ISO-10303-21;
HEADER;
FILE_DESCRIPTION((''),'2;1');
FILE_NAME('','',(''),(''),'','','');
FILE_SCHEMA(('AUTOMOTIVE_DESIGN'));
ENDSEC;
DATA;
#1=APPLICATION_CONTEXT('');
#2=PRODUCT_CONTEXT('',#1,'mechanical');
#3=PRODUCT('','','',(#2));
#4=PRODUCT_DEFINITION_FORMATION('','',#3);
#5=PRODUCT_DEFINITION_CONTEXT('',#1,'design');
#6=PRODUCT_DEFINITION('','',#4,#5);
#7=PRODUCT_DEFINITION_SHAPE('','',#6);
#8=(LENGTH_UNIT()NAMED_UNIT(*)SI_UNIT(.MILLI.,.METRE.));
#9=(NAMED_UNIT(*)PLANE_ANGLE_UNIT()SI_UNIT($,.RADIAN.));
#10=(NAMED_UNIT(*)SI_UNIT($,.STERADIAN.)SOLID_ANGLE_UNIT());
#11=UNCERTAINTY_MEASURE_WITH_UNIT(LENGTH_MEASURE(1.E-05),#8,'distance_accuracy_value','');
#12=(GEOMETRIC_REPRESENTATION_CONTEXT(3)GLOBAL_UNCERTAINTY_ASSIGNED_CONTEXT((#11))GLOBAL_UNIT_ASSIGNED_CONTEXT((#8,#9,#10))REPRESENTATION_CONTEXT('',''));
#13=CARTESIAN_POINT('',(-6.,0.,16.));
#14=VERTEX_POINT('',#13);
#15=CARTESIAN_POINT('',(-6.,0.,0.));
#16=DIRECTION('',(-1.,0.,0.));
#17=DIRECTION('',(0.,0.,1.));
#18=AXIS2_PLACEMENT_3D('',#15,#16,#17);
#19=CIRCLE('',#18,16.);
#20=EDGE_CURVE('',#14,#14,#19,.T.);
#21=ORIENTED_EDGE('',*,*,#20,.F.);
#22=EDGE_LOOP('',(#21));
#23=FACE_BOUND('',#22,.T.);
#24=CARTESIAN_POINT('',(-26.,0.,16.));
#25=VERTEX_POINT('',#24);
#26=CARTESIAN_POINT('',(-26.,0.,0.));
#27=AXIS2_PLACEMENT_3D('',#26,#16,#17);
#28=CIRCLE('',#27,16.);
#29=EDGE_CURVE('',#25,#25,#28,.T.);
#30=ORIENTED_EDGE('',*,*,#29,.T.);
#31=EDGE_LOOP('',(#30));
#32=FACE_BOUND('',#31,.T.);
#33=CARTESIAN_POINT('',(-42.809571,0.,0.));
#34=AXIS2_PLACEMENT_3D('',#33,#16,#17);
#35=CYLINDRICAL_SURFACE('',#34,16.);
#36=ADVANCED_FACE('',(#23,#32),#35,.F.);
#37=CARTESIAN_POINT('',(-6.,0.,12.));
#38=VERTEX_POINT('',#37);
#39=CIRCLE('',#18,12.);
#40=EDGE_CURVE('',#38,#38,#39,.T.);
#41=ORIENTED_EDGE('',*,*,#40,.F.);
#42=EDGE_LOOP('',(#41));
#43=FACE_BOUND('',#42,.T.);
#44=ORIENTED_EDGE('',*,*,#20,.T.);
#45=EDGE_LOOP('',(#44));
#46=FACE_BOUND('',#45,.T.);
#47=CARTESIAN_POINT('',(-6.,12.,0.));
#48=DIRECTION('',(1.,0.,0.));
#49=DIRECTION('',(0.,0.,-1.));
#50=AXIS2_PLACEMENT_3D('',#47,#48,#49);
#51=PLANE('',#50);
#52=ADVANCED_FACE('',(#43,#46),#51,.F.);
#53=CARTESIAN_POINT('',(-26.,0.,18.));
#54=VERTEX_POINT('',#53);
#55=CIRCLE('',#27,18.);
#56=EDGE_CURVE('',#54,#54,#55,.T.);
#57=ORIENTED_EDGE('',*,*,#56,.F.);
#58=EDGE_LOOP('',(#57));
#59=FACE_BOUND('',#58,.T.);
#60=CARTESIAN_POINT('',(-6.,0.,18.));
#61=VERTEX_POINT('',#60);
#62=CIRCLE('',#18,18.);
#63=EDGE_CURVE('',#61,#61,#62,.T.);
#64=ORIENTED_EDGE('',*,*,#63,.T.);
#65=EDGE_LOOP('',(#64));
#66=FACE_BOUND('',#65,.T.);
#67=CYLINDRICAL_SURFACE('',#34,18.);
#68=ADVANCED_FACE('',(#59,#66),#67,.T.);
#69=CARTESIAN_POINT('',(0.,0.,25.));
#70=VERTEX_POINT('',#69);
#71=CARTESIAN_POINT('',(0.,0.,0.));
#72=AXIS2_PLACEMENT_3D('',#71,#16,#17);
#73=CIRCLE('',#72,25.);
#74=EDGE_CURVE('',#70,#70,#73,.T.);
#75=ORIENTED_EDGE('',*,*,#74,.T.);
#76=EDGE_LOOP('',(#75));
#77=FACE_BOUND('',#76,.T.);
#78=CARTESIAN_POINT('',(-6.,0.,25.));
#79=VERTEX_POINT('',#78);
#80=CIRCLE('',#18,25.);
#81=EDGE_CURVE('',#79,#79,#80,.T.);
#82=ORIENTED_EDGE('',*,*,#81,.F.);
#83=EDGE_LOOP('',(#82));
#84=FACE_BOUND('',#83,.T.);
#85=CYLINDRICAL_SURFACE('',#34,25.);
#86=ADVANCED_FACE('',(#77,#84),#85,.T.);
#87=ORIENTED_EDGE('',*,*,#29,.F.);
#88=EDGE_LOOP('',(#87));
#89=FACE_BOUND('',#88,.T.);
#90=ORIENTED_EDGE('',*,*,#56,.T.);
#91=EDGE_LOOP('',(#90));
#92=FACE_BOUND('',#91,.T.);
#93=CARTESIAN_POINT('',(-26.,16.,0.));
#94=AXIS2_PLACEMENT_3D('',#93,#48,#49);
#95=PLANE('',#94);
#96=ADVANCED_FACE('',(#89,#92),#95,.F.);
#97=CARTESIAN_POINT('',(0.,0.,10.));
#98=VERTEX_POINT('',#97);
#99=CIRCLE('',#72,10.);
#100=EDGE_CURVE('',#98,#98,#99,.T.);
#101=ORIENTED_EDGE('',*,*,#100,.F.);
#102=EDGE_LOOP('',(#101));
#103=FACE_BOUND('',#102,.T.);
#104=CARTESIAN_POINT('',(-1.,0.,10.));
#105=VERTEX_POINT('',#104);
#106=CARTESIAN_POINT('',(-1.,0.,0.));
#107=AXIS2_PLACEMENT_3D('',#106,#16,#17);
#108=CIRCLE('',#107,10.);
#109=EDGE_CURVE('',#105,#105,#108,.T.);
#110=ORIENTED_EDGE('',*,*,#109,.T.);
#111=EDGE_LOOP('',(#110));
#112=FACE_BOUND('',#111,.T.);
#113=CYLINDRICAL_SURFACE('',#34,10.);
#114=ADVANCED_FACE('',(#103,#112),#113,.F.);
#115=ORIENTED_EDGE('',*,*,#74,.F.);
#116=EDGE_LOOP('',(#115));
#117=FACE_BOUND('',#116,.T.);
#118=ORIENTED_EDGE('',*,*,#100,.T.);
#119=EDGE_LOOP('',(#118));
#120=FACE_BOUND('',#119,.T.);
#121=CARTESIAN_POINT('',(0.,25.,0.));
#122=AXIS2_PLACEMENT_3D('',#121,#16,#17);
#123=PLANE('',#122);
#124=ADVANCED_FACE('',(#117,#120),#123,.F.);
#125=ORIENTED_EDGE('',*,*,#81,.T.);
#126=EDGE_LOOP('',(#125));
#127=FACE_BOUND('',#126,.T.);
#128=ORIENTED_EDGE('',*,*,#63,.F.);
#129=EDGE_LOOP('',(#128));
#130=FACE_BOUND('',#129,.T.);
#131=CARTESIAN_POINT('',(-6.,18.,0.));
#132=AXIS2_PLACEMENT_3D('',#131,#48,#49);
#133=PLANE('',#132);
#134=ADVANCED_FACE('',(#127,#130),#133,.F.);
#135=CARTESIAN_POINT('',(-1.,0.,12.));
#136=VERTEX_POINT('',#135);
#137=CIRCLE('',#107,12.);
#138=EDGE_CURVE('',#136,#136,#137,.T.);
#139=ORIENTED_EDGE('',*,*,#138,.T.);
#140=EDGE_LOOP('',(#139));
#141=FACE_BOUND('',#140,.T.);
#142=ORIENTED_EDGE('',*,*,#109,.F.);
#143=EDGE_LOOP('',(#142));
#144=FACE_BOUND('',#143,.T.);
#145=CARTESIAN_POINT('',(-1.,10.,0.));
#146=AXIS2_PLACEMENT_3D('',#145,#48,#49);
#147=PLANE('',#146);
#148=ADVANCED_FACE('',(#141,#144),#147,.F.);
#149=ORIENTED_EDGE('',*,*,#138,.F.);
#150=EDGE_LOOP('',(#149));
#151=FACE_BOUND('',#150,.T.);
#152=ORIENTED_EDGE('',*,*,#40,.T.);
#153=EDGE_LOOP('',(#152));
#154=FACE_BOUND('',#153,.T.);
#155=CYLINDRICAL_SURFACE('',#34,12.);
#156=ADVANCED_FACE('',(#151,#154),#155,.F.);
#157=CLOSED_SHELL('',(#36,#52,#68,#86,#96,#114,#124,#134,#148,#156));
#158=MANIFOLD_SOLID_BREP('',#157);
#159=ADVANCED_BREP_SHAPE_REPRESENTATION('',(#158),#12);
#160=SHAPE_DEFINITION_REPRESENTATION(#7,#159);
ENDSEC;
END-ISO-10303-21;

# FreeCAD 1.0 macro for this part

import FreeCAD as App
import Part
import Sketcher

doc = App.newDocument("Part")
body = doc.addObject("PartDesign::Body", "Body")

sketch1 = body.newObject("Sketcher::SketchObject", "Sketch")
sketch1.AttachmentSupport = (doc.getObject("XY_Plane"), [""])
sketch1.MapMode = "FlatFace"
sketch1.addGeometry([
    Part.LineSegment(App.Vector(-6, 12, 0), App.Vector(-1, 12, 0)),
    Part.LineSegment(App.Vector(-1, 12, 0), App.Vector(-1, 10, 0)),
    Part.LineSegment(App.Vector(-1, 10, 0), App.Vector(0, 10, 0)),
    Part.LineSegment(App.Vector(0, 10, 0), App.Vector(0, 25, 0)),
    Part.LineSegment(App.Vector(0, 25, 0), App.Vector(-6, 25, 0)),
    Part.LineSegment(App.Vector(-6, 25, 0), App.Vector(-6, 18, 0)),
    Part.LineSegment(App.Vector(-6, 18, 0), App.Vector(-26, 18, 0)),
    Part.LineSegment(App.Vector(-26, 18, 0), App.Vector(-26, 16, 0)),
    Part.LineSegment(App.Vector(-26, 16, 0), App.Vector(-6, 16, 0)),
    Part.LineSegment(App.Vector(-6, 16, 0), App.Vector(-6, 12, 0)),
], False)
sketch1.addConstraint([
    Sketcher.Constraint("Coincident", 0, 2, 1, 1),
    Sketcher.Constraint("Coincident", 1, 2, 2, 1),
    Sketcher.Constraint("Coincident", 2, 2, 3, 1),
    Sketcher.Constraint("Coincident", 3, 2, 4, 1),
    Sketcher.Constraint("Coincident", 4, 2, 5, 1),
    Sketcher.Constraint("Coincident", 5, 2, 6, 1),
    Sketcher.Constraint("Coincident", 6, 2, 7, 1),
    Sketcher.Constraint("Coincident", 7, 2, 8, 1),
    Sketcher.Constraint("Coincident", 8, 2, 9, 1),
    Sketcher.Constraint("Coincident", 9, 2, 0, 1),
    Sketcher.Constraint("Horizontal", 0),
    Sketcher.Constraint("Vertical", 1),
    Sketcher.Constraint("Horizontal", 2),
    Sketcher.Constraint("Vertical", 3),
    Sketcher.Constraint("Horizontal", 4),
    Sketcher.Constraint("Vertical", 5),
    Sketcher.Constraint("Horizontal", 6),
    Sketcher.Constraint("Vertical", 7),
    Sketcher.Constraint("Horizontal", 8),
    Sketcher.Constraint("Vertical", 9),
    Sketcher.Constraint("PointOnObject", 2, 2, -2),
    Sketcher.Constraint("Vertical", 5, 2, 8, 2),
    Sketcher.Constraint("Equal", 1, 7),
    Sketcher.Constraint("DistanceX", 0, 1, 0, 2, 5.0),
    Sketcher.Constraint("DistanceX", 2, 1, 2, 2, 1.0),
    Sketcher.Constraint("DistanceX", 6, 2, 6, 1, 20.0),
    Sketcher.Constraint("DistanceY", 1, 2, 1, 1, 2.0),
    Sketcher.Constraint("DistanceY", 3, 1, 3, 2, 15.0),
    Sketcher.Constraint("DistanceY", 5, 2, 5, 1, 7.0),
    Sketcher.Constraint("DistanceY", -1, 1, 0, 2, 12.0),
])
revolution = body.newObject("PartDesign::Revolution", "Revolution")
revolution.Profile = sketch1
revolution.ReferenceAxis = (sketch1, ["H_Axis"])
revolution.Angle = 360

doc.recompute()
